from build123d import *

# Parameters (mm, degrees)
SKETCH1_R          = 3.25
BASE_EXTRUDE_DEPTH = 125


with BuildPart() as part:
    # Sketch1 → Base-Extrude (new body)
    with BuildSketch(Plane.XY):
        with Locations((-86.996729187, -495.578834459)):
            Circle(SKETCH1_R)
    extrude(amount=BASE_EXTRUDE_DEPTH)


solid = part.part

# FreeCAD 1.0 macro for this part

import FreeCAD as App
import Part
import Sketcher
from FreeCAD import Vector
Q = App.Units.Quantity

doc = App.newDocument("Part")
params = doc.addObject("Spreadsheet::Sheet", "Params")
for row, (alias, value) in enumerate([
    ("sketch1_diameter", "6.5 mm"),
    ("pad1_length", "125 mm"),
], start=1):
    params.set(f"A{row}", alias)
    params.set(f"B{row}", "=" + value)
    params.setAlias(f"B{row}", alias)

body = doc.addObject("PartDesign::Body", "Body")

sketch1 = body.newObject("Sketcher::SketchObject", "Sketch")
sketch1.AttachmentSupport = (doc.getObject("XY_Plane"), [""])
sketch1.MapMode = "FlatFace"
sketch1.addGeometry(Part.Circle(Vector(-87, -495.6, 0), Vector(0, 0, 1), 3.2), False)
sketch1.addConstraint([
    Sketcher.Constraint("Diameter", 0, Q("6.5 mm")),
    Sketcher.Constraint("DistanceX", 0, 3, -1, 1, Q("86.996729 mm")),
    Sketcher.Constraint("DistanceY", 0, 3, -1, 1, Q("495.578834 mm")),
])
sketch1.setExpression("Constraints[0]", "Params.sketch1_diameter")
pad1 = body.newObject("PartDesign::Pad", "Pad")
pad1.Profile = sketch1
pad1.setExpression("Length", "Params.pad1_length")

doc.recompute()
